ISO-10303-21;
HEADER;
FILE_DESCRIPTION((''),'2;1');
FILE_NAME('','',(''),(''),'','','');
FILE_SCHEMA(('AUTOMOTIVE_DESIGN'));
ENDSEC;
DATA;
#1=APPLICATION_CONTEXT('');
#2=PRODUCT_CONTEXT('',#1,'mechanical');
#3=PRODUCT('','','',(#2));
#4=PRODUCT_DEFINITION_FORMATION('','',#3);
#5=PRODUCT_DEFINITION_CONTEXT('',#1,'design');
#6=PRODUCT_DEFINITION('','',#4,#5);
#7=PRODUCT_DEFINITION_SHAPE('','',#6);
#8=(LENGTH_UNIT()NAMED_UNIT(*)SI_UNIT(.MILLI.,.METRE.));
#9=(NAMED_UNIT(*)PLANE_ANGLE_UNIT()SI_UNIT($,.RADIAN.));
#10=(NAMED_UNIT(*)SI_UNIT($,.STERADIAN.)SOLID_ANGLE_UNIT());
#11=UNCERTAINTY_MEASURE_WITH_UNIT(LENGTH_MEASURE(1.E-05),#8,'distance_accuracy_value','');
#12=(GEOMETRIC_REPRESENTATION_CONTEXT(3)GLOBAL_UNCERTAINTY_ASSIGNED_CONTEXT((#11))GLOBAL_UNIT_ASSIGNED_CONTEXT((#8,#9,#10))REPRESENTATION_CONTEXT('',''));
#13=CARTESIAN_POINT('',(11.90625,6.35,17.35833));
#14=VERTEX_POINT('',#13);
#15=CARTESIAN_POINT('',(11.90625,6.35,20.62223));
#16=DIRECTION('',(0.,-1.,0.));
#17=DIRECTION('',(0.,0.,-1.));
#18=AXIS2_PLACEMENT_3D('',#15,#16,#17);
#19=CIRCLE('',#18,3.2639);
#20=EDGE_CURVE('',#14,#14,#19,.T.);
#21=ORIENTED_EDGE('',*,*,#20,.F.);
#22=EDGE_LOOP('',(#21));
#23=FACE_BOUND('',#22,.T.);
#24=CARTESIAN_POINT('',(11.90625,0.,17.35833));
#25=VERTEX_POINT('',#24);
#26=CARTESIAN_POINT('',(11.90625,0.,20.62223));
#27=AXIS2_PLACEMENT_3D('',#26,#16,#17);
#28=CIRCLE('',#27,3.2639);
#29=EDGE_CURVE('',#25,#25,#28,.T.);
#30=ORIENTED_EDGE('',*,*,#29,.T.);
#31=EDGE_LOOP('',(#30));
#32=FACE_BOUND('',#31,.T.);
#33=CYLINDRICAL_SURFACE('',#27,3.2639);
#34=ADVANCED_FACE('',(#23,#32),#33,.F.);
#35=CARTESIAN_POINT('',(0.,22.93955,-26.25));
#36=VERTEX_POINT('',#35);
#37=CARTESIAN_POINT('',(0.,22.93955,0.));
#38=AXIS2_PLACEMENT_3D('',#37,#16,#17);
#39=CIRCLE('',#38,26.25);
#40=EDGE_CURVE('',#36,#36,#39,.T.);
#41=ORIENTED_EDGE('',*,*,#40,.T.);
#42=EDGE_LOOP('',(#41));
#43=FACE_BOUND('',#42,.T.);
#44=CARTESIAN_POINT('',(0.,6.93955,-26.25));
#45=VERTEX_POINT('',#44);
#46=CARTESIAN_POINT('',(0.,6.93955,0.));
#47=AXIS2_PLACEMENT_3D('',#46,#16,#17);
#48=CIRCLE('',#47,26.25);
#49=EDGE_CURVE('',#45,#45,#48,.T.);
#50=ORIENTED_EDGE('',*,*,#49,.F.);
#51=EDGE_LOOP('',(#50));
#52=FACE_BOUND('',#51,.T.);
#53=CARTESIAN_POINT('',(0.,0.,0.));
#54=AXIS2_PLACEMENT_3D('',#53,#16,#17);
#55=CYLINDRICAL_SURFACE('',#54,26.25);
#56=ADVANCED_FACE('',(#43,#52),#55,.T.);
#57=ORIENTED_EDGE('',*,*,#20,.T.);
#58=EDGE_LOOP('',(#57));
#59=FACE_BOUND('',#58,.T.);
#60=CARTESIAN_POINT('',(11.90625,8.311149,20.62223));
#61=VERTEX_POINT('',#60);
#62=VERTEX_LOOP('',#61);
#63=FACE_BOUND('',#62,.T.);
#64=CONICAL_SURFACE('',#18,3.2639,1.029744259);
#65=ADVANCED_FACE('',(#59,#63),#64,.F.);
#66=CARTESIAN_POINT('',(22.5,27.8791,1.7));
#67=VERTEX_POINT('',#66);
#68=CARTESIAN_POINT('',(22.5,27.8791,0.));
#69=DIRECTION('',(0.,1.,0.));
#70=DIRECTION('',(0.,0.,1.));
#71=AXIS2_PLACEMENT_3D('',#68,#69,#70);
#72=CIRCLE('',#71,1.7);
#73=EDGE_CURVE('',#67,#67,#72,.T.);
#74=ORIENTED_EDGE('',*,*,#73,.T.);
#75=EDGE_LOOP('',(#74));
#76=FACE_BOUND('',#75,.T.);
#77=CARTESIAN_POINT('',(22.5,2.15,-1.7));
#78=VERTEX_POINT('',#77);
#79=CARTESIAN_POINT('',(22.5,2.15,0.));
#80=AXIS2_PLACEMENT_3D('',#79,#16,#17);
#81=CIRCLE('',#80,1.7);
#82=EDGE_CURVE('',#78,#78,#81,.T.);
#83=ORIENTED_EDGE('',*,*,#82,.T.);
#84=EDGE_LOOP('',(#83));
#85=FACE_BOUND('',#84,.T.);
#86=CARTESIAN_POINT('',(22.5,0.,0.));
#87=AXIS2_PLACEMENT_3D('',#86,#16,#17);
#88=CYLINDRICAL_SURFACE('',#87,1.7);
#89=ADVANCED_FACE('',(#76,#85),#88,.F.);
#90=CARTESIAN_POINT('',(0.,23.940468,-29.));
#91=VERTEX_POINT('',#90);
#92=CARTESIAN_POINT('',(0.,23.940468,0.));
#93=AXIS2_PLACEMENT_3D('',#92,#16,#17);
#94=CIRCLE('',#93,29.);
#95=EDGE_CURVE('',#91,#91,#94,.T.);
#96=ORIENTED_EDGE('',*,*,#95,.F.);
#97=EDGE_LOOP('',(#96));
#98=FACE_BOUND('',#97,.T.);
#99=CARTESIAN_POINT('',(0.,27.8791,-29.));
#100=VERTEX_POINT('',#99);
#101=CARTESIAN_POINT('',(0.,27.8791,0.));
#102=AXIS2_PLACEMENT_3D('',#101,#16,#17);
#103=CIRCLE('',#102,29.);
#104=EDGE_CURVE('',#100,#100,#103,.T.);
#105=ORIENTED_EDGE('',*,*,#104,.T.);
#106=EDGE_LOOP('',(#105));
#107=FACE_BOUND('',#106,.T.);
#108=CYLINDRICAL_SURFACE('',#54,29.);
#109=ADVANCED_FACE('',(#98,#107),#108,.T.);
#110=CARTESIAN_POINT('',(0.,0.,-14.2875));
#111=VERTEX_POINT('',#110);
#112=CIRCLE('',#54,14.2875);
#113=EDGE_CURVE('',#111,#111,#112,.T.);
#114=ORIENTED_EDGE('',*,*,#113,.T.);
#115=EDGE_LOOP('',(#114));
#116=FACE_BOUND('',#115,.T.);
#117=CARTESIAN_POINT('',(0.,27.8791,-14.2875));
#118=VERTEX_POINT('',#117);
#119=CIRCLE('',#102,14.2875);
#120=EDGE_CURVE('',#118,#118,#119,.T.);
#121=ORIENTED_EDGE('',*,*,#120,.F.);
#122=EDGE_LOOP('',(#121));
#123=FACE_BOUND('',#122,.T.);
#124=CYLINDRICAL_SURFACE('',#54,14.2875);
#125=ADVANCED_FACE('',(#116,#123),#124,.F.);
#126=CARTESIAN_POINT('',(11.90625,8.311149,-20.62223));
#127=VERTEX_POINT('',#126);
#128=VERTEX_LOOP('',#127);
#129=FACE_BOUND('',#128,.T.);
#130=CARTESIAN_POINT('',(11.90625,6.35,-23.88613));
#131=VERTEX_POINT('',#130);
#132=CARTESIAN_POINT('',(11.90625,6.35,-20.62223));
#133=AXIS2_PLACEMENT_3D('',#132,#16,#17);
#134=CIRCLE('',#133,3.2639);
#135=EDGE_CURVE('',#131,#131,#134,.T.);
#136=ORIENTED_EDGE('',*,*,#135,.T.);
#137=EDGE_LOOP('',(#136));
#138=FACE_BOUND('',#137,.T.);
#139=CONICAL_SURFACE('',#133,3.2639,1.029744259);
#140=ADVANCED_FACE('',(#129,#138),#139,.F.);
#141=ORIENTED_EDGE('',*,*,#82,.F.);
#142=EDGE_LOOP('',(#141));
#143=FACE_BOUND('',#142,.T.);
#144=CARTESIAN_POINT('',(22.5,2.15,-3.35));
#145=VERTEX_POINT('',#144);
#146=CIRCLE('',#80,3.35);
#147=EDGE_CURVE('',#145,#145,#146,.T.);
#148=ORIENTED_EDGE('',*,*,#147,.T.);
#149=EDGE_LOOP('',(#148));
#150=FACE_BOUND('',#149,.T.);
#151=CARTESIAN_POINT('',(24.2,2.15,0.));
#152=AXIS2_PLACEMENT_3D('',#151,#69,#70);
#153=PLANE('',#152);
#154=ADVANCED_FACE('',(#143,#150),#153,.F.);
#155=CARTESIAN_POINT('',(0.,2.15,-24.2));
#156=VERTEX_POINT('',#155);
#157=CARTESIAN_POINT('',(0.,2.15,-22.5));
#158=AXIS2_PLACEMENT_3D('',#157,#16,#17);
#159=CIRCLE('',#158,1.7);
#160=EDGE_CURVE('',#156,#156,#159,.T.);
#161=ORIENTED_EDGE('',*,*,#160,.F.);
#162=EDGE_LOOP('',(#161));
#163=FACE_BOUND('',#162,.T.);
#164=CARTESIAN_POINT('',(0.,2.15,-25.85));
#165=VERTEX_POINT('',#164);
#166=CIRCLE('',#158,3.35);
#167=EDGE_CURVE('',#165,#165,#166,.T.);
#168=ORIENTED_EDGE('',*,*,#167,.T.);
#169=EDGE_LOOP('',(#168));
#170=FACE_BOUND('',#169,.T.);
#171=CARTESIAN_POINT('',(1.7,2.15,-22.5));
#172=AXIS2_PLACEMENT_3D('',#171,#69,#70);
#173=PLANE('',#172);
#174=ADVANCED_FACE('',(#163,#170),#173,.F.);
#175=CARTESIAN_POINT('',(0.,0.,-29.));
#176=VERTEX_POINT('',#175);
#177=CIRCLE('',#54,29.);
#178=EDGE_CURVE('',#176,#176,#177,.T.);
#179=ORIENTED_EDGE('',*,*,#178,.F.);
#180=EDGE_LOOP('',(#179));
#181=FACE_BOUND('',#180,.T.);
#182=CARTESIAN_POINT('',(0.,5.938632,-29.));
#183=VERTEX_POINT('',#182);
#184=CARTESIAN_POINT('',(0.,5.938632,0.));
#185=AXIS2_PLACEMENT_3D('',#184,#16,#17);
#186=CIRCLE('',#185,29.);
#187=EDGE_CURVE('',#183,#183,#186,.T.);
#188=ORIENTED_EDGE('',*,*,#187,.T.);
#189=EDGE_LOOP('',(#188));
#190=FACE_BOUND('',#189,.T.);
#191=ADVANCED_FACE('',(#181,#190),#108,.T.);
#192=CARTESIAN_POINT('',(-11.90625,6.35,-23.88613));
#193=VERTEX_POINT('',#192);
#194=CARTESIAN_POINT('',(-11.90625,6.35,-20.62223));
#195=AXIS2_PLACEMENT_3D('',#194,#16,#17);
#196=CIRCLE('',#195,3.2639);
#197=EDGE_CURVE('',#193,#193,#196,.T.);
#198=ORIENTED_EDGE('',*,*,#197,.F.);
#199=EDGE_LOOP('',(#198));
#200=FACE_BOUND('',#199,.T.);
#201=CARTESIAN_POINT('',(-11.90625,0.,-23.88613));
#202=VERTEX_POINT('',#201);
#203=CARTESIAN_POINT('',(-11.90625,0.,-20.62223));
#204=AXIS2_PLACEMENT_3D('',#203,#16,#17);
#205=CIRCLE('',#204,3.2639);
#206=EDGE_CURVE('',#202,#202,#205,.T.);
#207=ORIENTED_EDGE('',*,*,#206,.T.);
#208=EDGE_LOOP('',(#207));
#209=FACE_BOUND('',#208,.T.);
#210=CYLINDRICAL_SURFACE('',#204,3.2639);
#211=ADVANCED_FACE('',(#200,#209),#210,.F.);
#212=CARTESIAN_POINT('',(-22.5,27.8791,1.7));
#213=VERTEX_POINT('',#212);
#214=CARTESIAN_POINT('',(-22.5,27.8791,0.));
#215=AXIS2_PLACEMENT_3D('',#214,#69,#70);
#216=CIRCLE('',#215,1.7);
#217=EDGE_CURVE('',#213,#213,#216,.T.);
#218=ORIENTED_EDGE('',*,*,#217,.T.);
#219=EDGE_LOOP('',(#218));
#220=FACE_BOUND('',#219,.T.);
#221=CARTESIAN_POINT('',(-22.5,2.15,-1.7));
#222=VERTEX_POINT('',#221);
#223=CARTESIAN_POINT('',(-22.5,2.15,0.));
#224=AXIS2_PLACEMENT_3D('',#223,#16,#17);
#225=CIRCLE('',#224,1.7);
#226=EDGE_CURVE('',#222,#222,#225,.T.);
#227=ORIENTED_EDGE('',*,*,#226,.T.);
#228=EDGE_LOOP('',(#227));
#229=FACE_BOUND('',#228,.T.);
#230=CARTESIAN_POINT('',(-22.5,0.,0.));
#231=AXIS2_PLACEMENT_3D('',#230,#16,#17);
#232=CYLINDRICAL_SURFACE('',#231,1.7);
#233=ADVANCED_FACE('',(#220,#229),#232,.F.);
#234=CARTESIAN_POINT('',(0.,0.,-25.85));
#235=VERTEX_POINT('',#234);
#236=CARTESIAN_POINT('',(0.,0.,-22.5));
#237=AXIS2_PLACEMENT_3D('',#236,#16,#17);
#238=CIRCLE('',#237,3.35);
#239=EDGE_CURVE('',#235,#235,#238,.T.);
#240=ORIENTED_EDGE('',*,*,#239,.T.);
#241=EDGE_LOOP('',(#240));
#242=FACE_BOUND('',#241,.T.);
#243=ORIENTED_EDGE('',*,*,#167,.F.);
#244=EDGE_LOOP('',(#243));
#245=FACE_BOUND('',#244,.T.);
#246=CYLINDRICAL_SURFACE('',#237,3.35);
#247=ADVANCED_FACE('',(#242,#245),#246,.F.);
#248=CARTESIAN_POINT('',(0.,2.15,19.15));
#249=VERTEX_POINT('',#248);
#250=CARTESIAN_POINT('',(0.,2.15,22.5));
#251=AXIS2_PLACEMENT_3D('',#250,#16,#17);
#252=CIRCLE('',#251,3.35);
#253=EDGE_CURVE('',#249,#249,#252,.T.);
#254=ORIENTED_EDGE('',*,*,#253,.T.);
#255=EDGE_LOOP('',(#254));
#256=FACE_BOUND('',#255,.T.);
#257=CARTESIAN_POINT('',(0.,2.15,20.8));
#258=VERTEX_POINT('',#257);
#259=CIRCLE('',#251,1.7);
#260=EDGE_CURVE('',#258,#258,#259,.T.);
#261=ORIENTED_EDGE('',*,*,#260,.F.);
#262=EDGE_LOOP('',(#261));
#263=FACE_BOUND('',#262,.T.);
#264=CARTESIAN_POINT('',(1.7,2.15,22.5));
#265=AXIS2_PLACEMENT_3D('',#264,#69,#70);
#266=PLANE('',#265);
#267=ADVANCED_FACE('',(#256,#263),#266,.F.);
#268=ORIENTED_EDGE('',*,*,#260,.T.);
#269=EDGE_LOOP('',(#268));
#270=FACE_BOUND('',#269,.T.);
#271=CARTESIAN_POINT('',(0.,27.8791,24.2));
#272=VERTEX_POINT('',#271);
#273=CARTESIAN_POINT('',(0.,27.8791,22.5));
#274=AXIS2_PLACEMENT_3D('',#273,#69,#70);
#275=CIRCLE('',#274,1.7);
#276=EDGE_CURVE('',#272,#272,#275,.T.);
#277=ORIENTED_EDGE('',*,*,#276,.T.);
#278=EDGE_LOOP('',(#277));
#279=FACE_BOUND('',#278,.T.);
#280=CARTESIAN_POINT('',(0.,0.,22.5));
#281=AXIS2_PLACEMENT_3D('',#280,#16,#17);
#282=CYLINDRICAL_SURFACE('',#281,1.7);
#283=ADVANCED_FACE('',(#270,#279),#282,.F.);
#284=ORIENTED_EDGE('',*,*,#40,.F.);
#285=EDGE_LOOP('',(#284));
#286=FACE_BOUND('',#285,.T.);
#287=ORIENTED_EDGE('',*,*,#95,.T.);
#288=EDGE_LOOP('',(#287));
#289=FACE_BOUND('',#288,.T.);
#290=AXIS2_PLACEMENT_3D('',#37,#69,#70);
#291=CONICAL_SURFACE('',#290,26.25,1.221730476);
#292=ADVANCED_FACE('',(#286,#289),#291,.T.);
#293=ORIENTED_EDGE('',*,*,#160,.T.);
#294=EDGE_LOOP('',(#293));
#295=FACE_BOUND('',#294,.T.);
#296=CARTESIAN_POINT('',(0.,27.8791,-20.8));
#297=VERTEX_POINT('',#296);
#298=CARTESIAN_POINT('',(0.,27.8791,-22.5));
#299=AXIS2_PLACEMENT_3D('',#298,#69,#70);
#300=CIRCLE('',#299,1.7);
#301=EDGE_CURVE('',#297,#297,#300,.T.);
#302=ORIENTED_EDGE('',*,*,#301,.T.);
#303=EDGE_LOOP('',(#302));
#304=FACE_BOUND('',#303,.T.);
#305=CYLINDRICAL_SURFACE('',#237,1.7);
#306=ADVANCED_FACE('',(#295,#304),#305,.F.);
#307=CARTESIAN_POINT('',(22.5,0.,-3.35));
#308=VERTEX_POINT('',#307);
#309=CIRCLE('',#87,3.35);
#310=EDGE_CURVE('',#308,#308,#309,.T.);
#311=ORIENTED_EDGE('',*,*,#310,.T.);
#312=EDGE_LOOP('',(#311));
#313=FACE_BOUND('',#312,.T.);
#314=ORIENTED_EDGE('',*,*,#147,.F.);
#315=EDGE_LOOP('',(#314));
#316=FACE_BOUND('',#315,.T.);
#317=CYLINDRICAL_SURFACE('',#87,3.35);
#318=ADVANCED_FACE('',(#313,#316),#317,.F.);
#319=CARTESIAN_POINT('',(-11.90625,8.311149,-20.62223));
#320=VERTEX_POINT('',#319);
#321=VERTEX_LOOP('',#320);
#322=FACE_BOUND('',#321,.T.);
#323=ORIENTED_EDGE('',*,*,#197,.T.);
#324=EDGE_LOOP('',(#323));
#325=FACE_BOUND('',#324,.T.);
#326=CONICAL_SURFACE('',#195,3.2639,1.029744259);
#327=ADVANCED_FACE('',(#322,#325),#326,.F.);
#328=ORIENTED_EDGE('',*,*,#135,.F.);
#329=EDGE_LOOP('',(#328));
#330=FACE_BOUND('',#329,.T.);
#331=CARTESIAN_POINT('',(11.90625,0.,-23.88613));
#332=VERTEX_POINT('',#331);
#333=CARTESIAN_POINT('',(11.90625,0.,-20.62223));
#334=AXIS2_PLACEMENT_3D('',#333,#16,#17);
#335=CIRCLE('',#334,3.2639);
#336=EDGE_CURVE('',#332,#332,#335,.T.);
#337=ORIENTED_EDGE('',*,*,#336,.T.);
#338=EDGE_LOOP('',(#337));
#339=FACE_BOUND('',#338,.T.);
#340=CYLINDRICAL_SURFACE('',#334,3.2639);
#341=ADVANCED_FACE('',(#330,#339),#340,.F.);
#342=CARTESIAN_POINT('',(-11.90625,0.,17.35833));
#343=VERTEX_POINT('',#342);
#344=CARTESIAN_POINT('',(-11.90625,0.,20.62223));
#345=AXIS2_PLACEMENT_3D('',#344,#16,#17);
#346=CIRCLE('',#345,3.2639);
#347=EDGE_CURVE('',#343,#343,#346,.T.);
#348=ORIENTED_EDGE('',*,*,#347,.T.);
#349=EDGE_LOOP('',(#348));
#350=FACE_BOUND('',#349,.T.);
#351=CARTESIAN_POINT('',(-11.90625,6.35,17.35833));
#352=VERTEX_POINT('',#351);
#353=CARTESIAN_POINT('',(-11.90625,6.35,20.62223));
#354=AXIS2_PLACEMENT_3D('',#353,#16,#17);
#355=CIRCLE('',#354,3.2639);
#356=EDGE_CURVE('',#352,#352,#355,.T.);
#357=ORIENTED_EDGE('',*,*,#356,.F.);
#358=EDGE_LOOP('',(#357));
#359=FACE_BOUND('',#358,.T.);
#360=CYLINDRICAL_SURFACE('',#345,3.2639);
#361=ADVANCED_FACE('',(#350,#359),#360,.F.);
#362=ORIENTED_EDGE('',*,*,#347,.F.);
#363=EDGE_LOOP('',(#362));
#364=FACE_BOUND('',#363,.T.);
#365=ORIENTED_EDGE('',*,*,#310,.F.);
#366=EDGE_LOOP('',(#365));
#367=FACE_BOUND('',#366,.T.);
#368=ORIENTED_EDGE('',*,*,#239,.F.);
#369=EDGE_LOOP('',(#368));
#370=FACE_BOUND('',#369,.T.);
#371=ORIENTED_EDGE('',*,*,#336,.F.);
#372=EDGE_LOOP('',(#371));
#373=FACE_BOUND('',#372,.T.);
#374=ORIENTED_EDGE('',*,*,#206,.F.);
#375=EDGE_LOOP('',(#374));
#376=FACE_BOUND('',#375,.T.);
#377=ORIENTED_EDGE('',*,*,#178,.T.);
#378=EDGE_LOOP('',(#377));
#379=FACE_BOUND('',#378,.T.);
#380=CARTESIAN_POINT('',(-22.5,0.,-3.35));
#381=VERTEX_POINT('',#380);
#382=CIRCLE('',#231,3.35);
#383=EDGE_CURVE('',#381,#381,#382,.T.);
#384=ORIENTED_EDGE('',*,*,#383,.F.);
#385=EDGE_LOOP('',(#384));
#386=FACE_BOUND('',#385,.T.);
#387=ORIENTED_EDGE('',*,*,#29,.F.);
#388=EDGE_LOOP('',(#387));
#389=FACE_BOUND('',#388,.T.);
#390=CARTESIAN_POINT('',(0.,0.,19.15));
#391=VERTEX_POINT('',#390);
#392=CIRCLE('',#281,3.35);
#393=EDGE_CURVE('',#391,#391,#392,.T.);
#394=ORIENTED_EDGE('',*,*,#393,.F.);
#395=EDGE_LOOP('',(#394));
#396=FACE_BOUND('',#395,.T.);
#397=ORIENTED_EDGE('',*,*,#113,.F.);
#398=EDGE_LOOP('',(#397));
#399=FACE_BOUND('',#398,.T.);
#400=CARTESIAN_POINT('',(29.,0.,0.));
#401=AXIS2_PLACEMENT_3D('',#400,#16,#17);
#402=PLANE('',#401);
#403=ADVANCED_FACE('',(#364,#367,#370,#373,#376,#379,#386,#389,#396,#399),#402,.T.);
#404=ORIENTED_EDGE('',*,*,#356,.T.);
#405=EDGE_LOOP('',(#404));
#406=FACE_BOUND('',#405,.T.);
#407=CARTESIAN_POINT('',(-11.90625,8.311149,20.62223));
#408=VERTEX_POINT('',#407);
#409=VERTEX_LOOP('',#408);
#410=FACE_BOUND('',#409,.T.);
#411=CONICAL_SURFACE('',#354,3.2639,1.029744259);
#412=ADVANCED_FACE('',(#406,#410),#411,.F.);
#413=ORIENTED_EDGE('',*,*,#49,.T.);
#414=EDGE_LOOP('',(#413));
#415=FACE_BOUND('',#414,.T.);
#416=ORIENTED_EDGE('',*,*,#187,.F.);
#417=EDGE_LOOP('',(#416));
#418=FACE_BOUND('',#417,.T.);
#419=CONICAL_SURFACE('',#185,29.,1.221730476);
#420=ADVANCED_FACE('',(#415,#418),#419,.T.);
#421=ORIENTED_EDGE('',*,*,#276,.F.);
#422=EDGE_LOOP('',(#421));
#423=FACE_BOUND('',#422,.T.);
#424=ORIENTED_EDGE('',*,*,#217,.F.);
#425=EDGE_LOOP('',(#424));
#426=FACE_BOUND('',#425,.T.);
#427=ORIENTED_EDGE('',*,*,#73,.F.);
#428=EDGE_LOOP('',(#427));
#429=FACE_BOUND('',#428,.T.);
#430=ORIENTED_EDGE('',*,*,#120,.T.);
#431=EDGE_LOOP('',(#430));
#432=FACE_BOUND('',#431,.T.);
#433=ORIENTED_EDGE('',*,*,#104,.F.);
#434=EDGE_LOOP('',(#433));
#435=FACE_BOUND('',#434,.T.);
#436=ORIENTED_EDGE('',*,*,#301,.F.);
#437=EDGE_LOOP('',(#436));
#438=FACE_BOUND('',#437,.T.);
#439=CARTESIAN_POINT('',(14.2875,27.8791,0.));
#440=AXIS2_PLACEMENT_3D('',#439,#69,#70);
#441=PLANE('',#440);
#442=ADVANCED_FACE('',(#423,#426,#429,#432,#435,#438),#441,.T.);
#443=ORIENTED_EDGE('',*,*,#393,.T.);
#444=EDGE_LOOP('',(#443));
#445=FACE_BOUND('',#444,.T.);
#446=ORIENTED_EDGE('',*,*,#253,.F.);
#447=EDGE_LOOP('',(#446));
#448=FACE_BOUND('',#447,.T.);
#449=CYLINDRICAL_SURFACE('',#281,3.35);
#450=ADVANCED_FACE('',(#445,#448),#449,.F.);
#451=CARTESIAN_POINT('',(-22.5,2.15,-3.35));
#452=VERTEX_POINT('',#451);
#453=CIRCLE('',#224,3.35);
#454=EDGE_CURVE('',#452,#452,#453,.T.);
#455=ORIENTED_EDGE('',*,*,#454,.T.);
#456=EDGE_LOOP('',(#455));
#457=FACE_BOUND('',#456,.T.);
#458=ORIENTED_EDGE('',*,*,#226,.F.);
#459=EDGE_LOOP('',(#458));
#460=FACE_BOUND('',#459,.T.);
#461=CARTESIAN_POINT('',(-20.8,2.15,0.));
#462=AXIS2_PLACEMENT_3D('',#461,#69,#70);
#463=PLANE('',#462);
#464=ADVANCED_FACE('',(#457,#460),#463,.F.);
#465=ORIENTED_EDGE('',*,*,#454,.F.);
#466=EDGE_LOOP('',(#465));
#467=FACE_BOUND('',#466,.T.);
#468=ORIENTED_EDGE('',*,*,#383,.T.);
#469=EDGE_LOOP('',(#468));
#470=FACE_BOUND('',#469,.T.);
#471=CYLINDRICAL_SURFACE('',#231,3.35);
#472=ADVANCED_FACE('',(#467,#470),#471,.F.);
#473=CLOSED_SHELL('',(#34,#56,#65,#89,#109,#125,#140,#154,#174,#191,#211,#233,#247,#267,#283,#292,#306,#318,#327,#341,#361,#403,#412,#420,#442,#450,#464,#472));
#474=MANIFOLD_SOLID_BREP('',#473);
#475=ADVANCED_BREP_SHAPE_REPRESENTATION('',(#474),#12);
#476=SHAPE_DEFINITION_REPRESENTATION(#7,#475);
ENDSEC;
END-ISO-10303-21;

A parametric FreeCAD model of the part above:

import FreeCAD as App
import Part
import Sketcher

V = App.Vector
Q = App.Units.Quantity


def add_polygon(sketch, points):
    """Adds a closed chain of lines whose ends are joined by coincident constraints."""
    first, n = sketch.GeometryCount, len(points)
    for a, b in zip(points, points[1:] + points[:1]):
        sketch.addGeometry(Part.LineSegment(App.Vector(*a, 0), App.Vector(*b, 0)), False)
    for i in range(n):
        sketch.addConstraint(Sketcher.Constraint("Coincident", first + i, 2, first + (i + 1) % n, 1))

doc = App.newDocument("Part")
body = doc.addObject("PartDesign::Body", "Body")

# Sketch on XY plane
sketch1 = body.newObject("Sketcher::SketchObject", "Sketch")
sketch1.AttachmentSupport = (doc.getObject("XY_Plane"), [""])
sketch1.MapMode = "FlatFace"
add_polygon(sketch1, [(29, 27.8791), (14.2875, 27.8791), (14.2875, 0), (29, 0), (29, 5.938632), (26.25, 6.93955), (26.25, 22.93955), (29, 23.940468)])  # lines 0-7
sketch1.addConstraint(Sketcher.Constraint("Horizontal", 0))
sketch1.addConstraint(Sketcher.Constraint("Vertical", 1))
sketch1.addConstraint(Sketcher.Constraint("Horizontal", 2))
sketch1.addConstraint(Sketcher.Constraint("Vertical", 3))
sketch1.addConstraint(Sketcher.Constraint("Vertical", 5))
sketch1.addConstraint(Sketcher.Constraint("Vertical", 7))
sketch1.addConstraint(Sketcher.Constraint("PointOnObject", 1, 2, -1))
sketch1.addConstraint(Sketcher.Constraint("Vertical", 3, 2, 6, 2))
sketch1.addConstraint(Sketcher.Constraint("Equal", 4, 6))
sketch1.addConstraint(Sketcher.Constraint("DistanceY", 5, 1, 5, 2, 16.0))
sketch1.addConstraint(Sketcher.Constraint("Angle", 4, Q("160 deg")))
sketch1.addConstraint(Sketcher.Constraint("DistanceX", -1, 1, 2, 2, 29.0))
sketch1.addConstraint(Sketcher.Constraint("DistanceX", -1, 1, 4, 2, 26.25))
sketch1.addConstraint(Sketcher.Constraint("DistanceX", 0, 2, 0, 1, 14.7125))
sketch1.addConstraint(Sketcher.Constraint("DistanceY", 1, 2, 1, 1, 27.8791))
sketch1.addConstraint(Sketcher.Constraint("DistanceY", 3, 1, 3, 2, 5.938632))
revolution = body.newObject("PartDesign::Revolution", "Revolution")
revolution.Profile = sketch1
revolution.ReferenceAxis = (sketch1, ["V_Axis"])
revolution.Angle = 360

# Sketch on XZ plane
sketch2 = body.newObject("Sketcher::SketchObject", "Sketch001")
sketch2.AttachmentSupport = (doc.getObject("XZ_Plane"), [""])
sketch2.MapMode = "FlatFace"
sketch2.addGeometry(Part.Circle(V(0, 22.5, 0), V(0, 0, 1), 1.7), False)
sketch2.addGeometry(Part.Circle(V(0, -22.5, 0), V(0, 0, 1), 1.7), False)
sketch2.addGeometry(Part.Circle(V(22.5, 0, 0), V(0, 0, 1), 1.7), False)
sketch2.addGeometry(Part.Circle(V(-22.5, 0, 0), V(0, 0, 1), 1.7), False)
sketch2.addConstraint(Sketcher.Constraint("Equal", 0, 1))
sketch2.addConstraint(Sketcher.Constraint("Equal", 1, 2))
sketch2.addConstraint(Sketcher.Constraint("Equal", 2, 3))
sketch2.addConstraint(Sketcher.Constraint("Symmetric", 0, 3, 1, 3, -1, 1))
sketch2.addConstraint(Sketcher.Constraint("Symmetric", 2, 3, 3, 3, -1, 1))
sketch2.addConstraint(Sketcher.Constraint("PointOnObject", 0, 3, -2))
sketch2.addConstraint(Sketcher.Constraint("PointOnObject", 2, 3, -1))
sketch2.addConstraint(Sketcher.Constraint("Diameter", 0, 3.4))
sketch2.addConstraint(Sketcher.Constraint("DistanceY", 1, 3, 0, 3, 45.0))
sketch2.addConstraint(Sketcher.Constraint("DistanceX", 3, 3, 2, 3, 45.0))
doc.recompute()
hole = body.newObject("PartDesign::Hole", "Hole")
hole.Profile = sketch2
hole.ThreadType = "None"
hole.Diameter = 3.4
hole.DepthType = "ThroughAll"
hole.HoleCutType = "Counterbore"
hole.HoleCutDiameter = 6.7
hole.HoleCutDepth = 2.15

# Sketch on XZ plane
sketch3 = body.newObject("Sketcher::SketchObject", "Sketch002")
sketch3.AttachmentSupport = (doc.getObject("XZ_Plane"), [""])
sketch3.MapMode = "FlatFace"
sketch3.addGeometry(Part.Circle(V(-11.90625, 20.62223, 0), V(0, 0, 1), 3.2639), False)
sketch3.addGeometry(Part.Circle(V(-11.90625, -20.62223, 0), V(0, 0, 1), 3.2639), False)
sketch3.addGeometry(Part.Circle(V(11.90625, -20.62223, 0), V(0, 0, 1), 3.2639), False)
sketch3.addGeometry(Part.Circle(V(11.90625, 20.62223, 0), V(0, 0, 1), 3.2639), False)
sketch3.addConstraint(Sketcher.Constraint("Equal", 0, 1))
sketch3.addConstraint(Sketcher.Constraint("Equal", 1, 2))
sketch3.addConstraint(Sketcher.Constraint("Equal", 2, 3))
sketch3.addConstraint(Sketcher.Constraint("Symmetric", 0, 3, 2, 3, -1, 1))
sketch3.addConstraint(Sketcher.Constraint("Symmetric", 1, 3, 3, 3, -1, 1))
sketch3.addConstraint(Sketcher.Constraint("Symmetric", 1, 3, 2, 3, -2))
sketch3.addConstraint(Sketcher.Constraint("Diameter", 0, 6.5278))
sketch3.addConstraint(Sketcher.Constraint("DistanceX", 1, 3, 2, 3, 23.8125))
sketch3.addConstraint(Sketcher.Constraint("DistanceY", -1, 1, 0, 3, 20.62223))
doc.recompute()
hole2 = body.newObject("PartDesign::Hole", "Hole001")
hole2.Profile = sketch3
hole2.ThreadType = "None"
hole2.Diameter = 6.5278
hole2.DepthType = "Dimension"
hole2.Depth = 6.35
hole2.DrillPoint = "Angled"
hole2.DrillPointAngle = 118

doc.recompute()
